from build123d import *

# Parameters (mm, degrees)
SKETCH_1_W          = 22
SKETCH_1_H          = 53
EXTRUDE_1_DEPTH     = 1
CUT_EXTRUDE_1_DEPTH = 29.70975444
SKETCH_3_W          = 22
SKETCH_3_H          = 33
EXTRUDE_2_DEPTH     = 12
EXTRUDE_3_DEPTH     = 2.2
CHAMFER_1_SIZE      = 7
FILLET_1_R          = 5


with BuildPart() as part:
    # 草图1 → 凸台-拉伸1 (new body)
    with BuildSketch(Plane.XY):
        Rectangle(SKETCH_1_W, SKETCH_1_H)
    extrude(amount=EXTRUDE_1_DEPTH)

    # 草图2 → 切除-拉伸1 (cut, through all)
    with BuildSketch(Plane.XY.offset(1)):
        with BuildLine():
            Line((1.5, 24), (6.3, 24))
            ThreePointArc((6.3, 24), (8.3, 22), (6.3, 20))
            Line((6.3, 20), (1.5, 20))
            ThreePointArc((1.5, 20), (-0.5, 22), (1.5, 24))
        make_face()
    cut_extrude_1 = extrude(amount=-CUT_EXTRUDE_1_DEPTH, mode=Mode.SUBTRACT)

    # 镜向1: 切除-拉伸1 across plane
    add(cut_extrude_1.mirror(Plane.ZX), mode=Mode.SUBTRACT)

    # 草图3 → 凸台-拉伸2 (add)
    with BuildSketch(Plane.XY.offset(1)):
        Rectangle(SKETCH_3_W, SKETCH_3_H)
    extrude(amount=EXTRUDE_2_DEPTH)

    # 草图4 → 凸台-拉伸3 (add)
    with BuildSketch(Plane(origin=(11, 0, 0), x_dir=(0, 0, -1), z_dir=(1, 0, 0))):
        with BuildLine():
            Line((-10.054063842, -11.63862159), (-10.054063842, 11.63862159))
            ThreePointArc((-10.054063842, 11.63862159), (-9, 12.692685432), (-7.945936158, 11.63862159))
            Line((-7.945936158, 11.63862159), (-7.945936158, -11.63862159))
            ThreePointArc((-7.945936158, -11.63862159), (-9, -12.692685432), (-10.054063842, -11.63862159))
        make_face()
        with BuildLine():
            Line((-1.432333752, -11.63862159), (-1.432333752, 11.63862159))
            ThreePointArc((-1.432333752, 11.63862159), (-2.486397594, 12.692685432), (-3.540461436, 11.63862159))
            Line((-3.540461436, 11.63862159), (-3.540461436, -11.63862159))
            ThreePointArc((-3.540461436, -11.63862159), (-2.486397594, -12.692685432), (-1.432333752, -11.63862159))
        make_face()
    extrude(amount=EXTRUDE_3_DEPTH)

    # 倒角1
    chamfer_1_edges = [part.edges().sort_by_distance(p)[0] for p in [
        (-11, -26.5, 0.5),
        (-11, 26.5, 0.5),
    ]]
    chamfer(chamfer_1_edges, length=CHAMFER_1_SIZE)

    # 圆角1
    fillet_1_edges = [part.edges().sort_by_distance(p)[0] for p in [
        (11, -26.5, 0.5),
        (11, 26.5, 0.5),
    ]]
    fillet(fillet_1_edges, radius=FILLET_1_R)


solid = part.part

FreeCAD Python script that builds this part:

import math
import FreeCAD as App
import Part
import Sketcher

V = App.Vector
Q = App.Units.Quantity


def edges_at(feature, points):
    """Names of the edges that pass closest to the given points."""
    edges = feature.Shape.Edges
    near = lambda p: min(range(len(edges)), key=lambda i: edges[i].distToShape(Part.Vertex(*p))[0])
    return sorted({f"Edge{near(p) + 1}" for p in points})


def add_polygon(sketch, points):
    """Adds a closed chain of lines whose ends are joined by coincident constraints."""
    first, n = sketch.GeometryCount, len(points)
    for a, b in zip(points, points[1:] + points[:1]):
        sketch.addGeometry(Part.LineSegment(App.Vector(*a, 0), App.Vector(*b, 0)), False)
    for i in range(n):
        sketch.addConstraint(Sketcher.Constraint("Coincident", first + i, 2, first + (i + 1) % n, 1))

doc = App.newDocument("Part")
body = doc.addObject("PartDesign::Body", "Body")

# Sketch on XY plane
sketch1 = body.newObject("Sketcher::SketchObject", "Sketch")
sketch1.AttachmentSupport = (doc.getObject("XY_Plane"), [""])
sketch1.MapMode = "FlatFace"
add_polygon(sketch1, [(-11, 26), (-11, -26), (11, -26), (11, 26)])  # lines 0-3
sketch1.addConstraint(Sketcher.Constraint("Vertical", 0))
sketch1.addConstraint(Sketcher.Constraint("Horizontal", 1))
sketch1.addConstraint(Sketcher.Constraint("Vertical", 2))
sketch1.addConstraint(Sketcher.Constraint("Horizontal", 3))
sketch1.addConstraint(Sketcher.Constraint("Symmetric", 0, 2, 2, 2, -1, 1))
sketch1.addConstraint(Sketcher.Constraint("DistanceX", 1, 1, 1, 2, Q("22 mm")))
sketch1.addConstraint(Sketcher.Constraint("DistanceY", 0, 2, 0, 1, Q("53 mm")))
pad1 = body.newObject("PartDesign::Pad", "Pad")
pad1.Profile = sketch1
pad1.Length = 1

# Sketch on XY plane
sketch2 = body.newObject("Sketcher::SketchObject", "Sketch001")
sketch2.AttachmentSupport = (doc.getObject("XY_Plane"), [""])
sketch2.MapMode = "FlatFace"
sketch2.AttachmentOffset = App.Placement(V(0, 0, 1), App.Rotation())
sketch2.addGeometry(Part.LineSegment(V(6.3, 24, 0), V(1.5, 24, 0)), False)
sketch2.addGeometry(Part.ArcOfCircle(Part.Circle(V(1.5, 22, 0), V(0, 0, 1), 2), math.radians(90), math.radians(270)), False)
sketch2.addGeometry(Part.LineSegment(V(1.5, 20, 0), V(6.3, 20, 0)), False)
sketch2.addGeometry(Part.ArcOfCircle(Part.Circle(V(6.3, 22, 0), V(0, 0, 1), 2), math.radians(-90), math.radians(90)), False)
sketch2.addConstraint(Sketcher.Constraint("Tangent", 0, 2, 1, 1))
sketch2.addConstraint(Sketcher.Constraint("Tangent", 1, 2, 2, 1))
sketch2.addConstraint(Sketcher.Constraint("Tangent", 2, 2, 3, 1))
sketch2.addConstraint(Sketcher.Constraint("Tangent", 3, 2, 0, 1))
sketch2.addConstraint(Sketcher.Constraint("Horizontal", 0))
sketch2.addConstraint(Sketcher.Constraint("Horizontal", 2))
sketch2.addConstraint(Sketcher.Constraint("Radius", 1, Q("2 mm")))
sketch2.addConstraint(Sketcher.Constraint("DistanceX", 0, 2, 0, 1, Q("4.8 mm")))
sketch2.addConstraint(Sketcher.Constraint("DistanceY", -1, 1, 1, 3, Q("22 mm")))
sketch2.addConstraint(Sketcher.Constraint("DistanceX", -1, 1, 1, 3, Q("1.5 mm")))
pocket1 = body.newObject("PartDesign::Pocket", "Pocket")
pocket1.Profile = sketch2
pocket1.Type = "ThroughAll"
doc.recompute()

mirrored = body.newObject("PartDesign::Mirrored", "Mirrored")
mirrored.Originals = [pocket1]
mirrored.MirrorPlane = (doc.getObject("XZ_Plane"), [""])
body.Tip = mirrored

# Sketch on XY plane
sketch3 = body.newObject("Sketcher::SketchObject", "Sketch002")
sketch3.AttachmentSupport = (doc.getObject("XY_Plane"), [""])
sketch3.MapMode = "FlatFace"
sketch3.AttachmentOffset = App.Placement(V(0, 0, 1), App.Rotation())
add_polygon(sketch3, [(-11, 16), (-11, -16), (11, -16), (11, 16)])  # lines 0-3
sketch3.addConstraint(Sketcher.Constraint("Vertical", 0))
sketch3.addConstraint(Sketcher.Constraint("Horizontal", 1))
sketch3.addConstraint(Sketcher.Constraint("Vertical", 2))
sketch3.addConstraint(Sketcher.Constraint("Horizontal", 3))
sketch3.addConstraint(Sketcher.Constraint("Symmetric", 0, 2, 2, 2, -1, 1))
sketch3.addConstraint(Sketcher.Constraint("DistanceX", 1, 1, 1, 2, Q("22 mm")))
sketch3.addConstraint(Sketcher.Constraint("DistanceY", 0, 2, 0, 1, Q("33 mm")))
pad2 = body.newObject("PartDesign::Pad", "Pad001")
pad2.Profile = sketch3
pad2.Length = 12

# Sketch on YZ plane
sketch4 = body.newObject("Sketcher::SketchObject", "Sketch003")
sketch4.AttachmentSupport = (doc.getObject("YZ_Plane"), [""])
sketch4.MapMode = "FlatFace"
sketch4.AttachmentOffset = App.Placement(V(0, 0, 11), App.Rotation())
sketch4.addGeometry(Part.LineSegment(V(11.6, 10.1, 0), V(-11.6, 10.1, 0)), False)
sketch4.addGeometry(Part.ArcOfCircle(Part.Circle(V(-11.6, 9, 0), V(0, 0, 1), 1.1), math.radians(90), math.radians(270)), False)
sketch4.addGeometry(Part.LineSegment(V(-11.6, 7.9, 0), V(11.6, 7.9, 0)), False)
sketch4.addGeometry(Part.ArcOfCircle(Part.Circle(V(11.6, 9, 0), V(0, 0, 1), 1.1), math.radians(-90), math.radians(90)), False)
sketch4.addGeometry(Part.LineSegment(V(-11.6, 1.4, 0), V(11.6, 1.4, 0)), False)
sketch4.addGeometry(Part.ArcOfCircle(Part.Circle(V(11.6, 2.5, 0), V(0, 0, 1), 1.1), math.radians(-90), math.radians(90)), False)
sketch4.addGeometry(Part.LineSegment(V(11.6, 3.5, 0), V(-11.6, 3.5, 0)), False)
sketch4.addGeometry(Part.ArcOfCircle(Part.Circle(V(-11.6, 2.5, 0), V(0, 0, 1), 1.1), math.radians(90), math.radians(270)), False)
sketch4.addConstraint(Sketcher.Constraint("Tangent", 0, 2, 1, 1))
sketch4.addConstraint(Sketcher.Constraint("Tangent", 1, 2, 2, 1))
sketch4.addConstraint(Sketcher.Constraint("Tangent", 2, 2, 3, 1))
sketch4.addConstraint(Sketcher.Constraint("Tangent", 3, 2, 0, 1))
sketch4.addConstraint(Sketcher.Constraint("Tangent", 4, 2, 5, 1))
sketch4.addConstraint(Sketcher.Constraint("Tangent", 5, 2, 6, 1))
sketch4.addConstraint(Sketcher.Constraint("Tangent", 6, 2, 7, 1))
sketch4.addConstraint(Sketcher.Constraint("Tangent", 7, 2, 4, 1))
sketch4.addConstraint(Sketcher.Constraint("Horizontal", 0))
sketch4.addConstraint(Sketcher.Constraint("Horizontal", 2))
sketch4.addConstraint(Sketcher.Constraint("Horizontal", 4))
sketch4.addConstraint(Sketcher.Constraint("Horizontal", 6))
sketch4.addConstraint(Sketcher.Constraint("Equal", 3, 5))
sketch4.addConstraint(Sketcher.Constraint("Vertical", 3, 3, 5, 3))
sketch4.addConstraint(Sketcher.Constraint("Vertical", 1, 3, 7, 3))
sketch4.addConstraint(Sketcher.Constraint("DistanceY", -1, 1, 1, 3, Q("9 mm")))
sketch4.addConstraint(Sketcher.Constraint("Radius", 1, Q("1.054064 mm")))
sketch4.addConstraint(Sketcher.Constraint("DistanceX", 0, 2, 0, 1, Q("23.277243 mm")))
sketch4.addConstraint(Sketcher.Constraint("DistanceX", 1, 3, -1, 1, Q("11.638622 mm")))
sketch4.addConstraint(Sketcher.Constraint("DistanceY", -1, 1, 5, 2, Q("3.540461 mm")))
pad3 = body.newObject("PartDesign::Pad", "Pad002")
pad3.Profile = sketch4
pad3.Length = 2.2
doc.recompute()

chamfer = body.newObject("PartDesign::Chamfer", "Chamfer")
chamfer.Base = (pad3, edges_at(pad3, [(-11, -26.5, 0.5), (-11, 26.5, 0.5)]))
chamfer.Size = 7
doc.recompute()

fillet = body.newObject("PartDesign::Fillet", "Fillet")
fillet.Base = (chamfer, edges_at(chamfer, [(11, -26.5, 0.5), (11, 26.5, 0.5)]))
fillet.Radius = 5

doc.recompute()
